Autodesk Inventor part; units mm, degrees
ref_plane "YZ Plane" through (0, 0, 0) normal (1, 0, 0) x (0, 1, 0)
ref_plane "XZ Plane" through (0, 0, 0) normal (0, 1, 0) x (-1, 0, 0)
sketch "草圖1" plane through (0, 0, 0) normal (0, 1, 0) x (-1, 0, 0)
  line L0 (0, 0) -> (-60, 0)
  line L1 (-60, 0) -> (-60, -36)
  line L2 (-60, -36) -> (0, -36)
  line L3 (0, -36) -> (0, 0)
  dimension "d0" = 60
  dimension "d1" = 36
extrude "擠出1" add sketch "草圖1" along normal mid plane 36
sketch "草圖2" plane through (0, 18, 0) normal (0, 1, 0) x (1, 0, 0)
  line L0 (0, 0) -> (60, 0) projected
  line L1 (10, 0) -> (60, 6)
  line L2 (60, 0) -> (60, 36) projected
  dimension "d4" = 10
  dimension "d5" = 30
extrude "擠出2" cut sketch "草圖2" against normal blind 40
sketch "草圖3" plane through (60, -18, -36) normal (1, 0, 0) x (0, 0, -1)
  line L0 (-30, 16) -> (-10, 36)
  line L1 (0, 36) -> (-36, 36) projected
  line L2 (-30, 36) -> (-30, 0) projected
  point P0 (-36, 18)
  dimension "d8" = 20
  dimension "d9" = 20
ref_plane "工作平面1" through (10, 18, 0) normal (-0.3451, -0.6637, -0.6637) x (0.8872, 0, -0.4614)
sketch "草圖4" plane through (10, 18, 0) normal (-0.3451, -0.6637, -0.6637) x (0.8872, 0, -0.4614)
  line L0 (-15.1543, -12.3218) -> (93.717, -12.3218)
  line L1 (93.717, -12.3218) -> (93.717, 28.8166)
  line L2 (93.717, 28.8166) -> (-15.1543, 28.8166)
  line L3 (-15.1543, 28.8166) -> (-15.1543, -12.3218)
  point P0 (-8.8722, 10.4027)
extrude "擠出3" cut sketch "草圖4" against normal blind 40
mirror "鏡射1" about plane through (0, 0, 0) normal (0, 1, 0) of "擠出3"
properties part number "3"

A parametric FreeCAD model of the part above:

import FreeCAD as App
import Part
import Sketcher
from FreeCAD import Vector

doc = App.newDocument("Part")
body = doc.addObject("PartDesign::Body", "Body")

# Sketch on XZ plane
sketch1 = body.newObject("Sketcher::SketchObject", "Sketch")
sketch1.AttachmentSupport = (doc.getObject("XZ_Plane"), [""])
sketch1.MapMode = "FlatFace"
sketch1.addGeometry(Part.LineSegment(Vector(0, -36, 0), Vector(0, 0, 0)), False)
sketch1.addGeometry(Part.LineSegment(Vector(0, 0, 0), Vector(60, 0, 0)), False)
sketch1.addGeometry(Part.LineSegment(Vector(60, 0, 0), Vector(60, -36, 0)), False)
sketch1.addGeometry(Part.LineSegment(Vector(60, -36, 0), Vector(0, -36, 0)), False)
sketch1.addConstraint(Sketcher.Constraint("Coincident", 0, 2, 1, 1))
sketch1.addConstraint(Sketcher.Constraint("Coincident", 1, 2, 2, 1))
sketch1.addConstraint(Sketcher.Constraint("Coincident", 2, 2, 3, 1))
sketch1.addConstraint(Sketcher.Constraint("Coincident", 3, 2, 0, 1))
sketch1.addConstraint(Sketcher.Constraint("Vertical", 0))
sketch1.addConstraint(Sketcher.Constraint("Horizontal", 1))
sketch1.addConstraint(Sketcher.Constraint("Vertical", 2))
sketch1.addConstraint(Sketcher.Constraint("Horizontal", 3))
sketch1.addConstraint(Sketcher.Constraint("Coincident", 0, 2, -1, 1))
sketch1.addConstraint(Sketcher.Constraint("DistanceX", 1, 1, 1, 2, 60.0))
sketch1.addConstraint(Sketcher.Constraint("DistanceY", 0, 1, 0, 2, 36.0))
pad1 = body.newObject("PartDesign::Pad", "Pad")
pad1.Profile = sketch1
pad1.Length = 36
pad1.Midplane = True

# Sketch on XZ plane
sketch2 = body.newObject("Sketcher::SketchObject", "Sketch001")
sketch2.AttachmentSupport = (doc.getObject("XZ_Plane"), [""])
sketch2.MapMode = "FlatFace"
sketch2.AttachmentOffset = App.Placement(Vector(0, 0, -18), App.Rotation())
sketch2.addGeometry(Part.LineSegment(Vector(60, -6, 0), Vector(10, 0, 0)), False)
sketch2.addGeometry(Part.LineSegment(Vector(10, 0, 0), Vector(60, 0, 0)), False)
sketch2.addGeometry(Part.LineSegment(Vector(60, 0, 0), Vector(60, -6, 0)), False)
sketch2.addConstraint(Sketcher.Constraint("Coincident", 0, 2, 1, 1))
sketch2.addConstraint(Sketcher.Constraint("Coincident", 1, 2, 2, 1))
sketch2.addConstraint(Sketcher.Constraint("Coincident", 2, 2, 0, 1))
sketch2.addConstraint(Sketcher.Constraint("Horizontal", 1))
sketch2.addConstraint(Sketcher.Constraint("Vertical", 2))
sketch2.addConstraint(Sketcher.Constraint("PointOnObject", 0, 2, -1))
sketch2.addConstraint(Sketcher.Constraint("DistanceX", -1, 1, 0, 2, 10.0))
sketch2.addConstraint(Sketcher.Constraint("DistanceX", 1, 1, 1, 2, 50.0))
sketch2.addConstraint(Sketcher.Constraint("DistanceY", 2, 2, 2, 1, 6.0))
pocket1 = body.newObject("PartDesign::Pocket", "Pocket")
pocket1.Profile = sketch2
pocket1.Length = 40
pocket1.Reversed = True

# Sketch on an angled plane
sketch3 = body.newObject("Sketcher::SketchObject", "Sketch002")
sketch3.Placement = App.Placement(Vector(10, 18, 0), App.Rotation(Vector(0.887214053, 0.000038796, -0.461358021), Vector(0.306215381, -0.748025188, 0.588804263), Vector(-0.345084577, -0.663670338, -0.663670338), "ZXY"))
sketch3.addGeometry(Part.LineSegment(Vector(-15, 29, 0), Vector(-15, -12, 0)), False)
sketch3.addGeometry(Part.LineSegment(Vector(-15, -12, 0), Vector(94, -12, 0)), False)
sketch3.addGeometry(Part.LineSegment(Vector(94, -12, 0), Vector(94, 29, 0)), False)
sketch3.addGeometry(Part.LineSegment(Vector(94, 29, 0), Vector(-15, 29, 0)), False)
sketch3.addConstraint(Sketcher.Constraint("Coincident", 0, 2, 1, 1))
sketch3.addConstraint(Sketcher.Constraint("Coincident", 1, 2, 2, 1))
sketch3.addConstraint(Sketcher.Constraint("Coincident", 2, 2, 3, 1))
sketch3.addConstraint(Sketcher.Constraint("Coincident", 3, 2, 0, 1))
sketch3.addConstraint(Sketcher.Constraint("Vertical", 0))
sketch3.addConstraint(Sketcher.Constraint("Horizontal", 1))
sketch3.addConstraint(Sketcher.Constraint("Vertical", 2))
sketch3.addConstraint(Sketcher.Constraint("Horizontal", 3))
sketch3.addConstraint(Sketcher.Constraint("DistanceX", 1, 1, 1, 2, 108.8713))
sketch3.addConstraint(Sketcher.Constraint("DistanceY", 0, 2, 0, 1, 41.1384))
sketch3.addConstraint(Sketcher.Constraint("DistanceX", -1, 1, 1, 2, 93.717))
sketch3.addConstraint(Sketcher.Constraint("DistanceY", 0, 2, -1, 1, 12.3218))
pocket2 = body.newObject("PartDesign::Pocket", "Pocket001")
pocket2.Profile = sketch3
pocket2.Length = 40
doc.recompute()

mirrored = body.newObject("PartDesign::Mirrored", "Mirrored")
mirrored.Originals = [pocket2]
mirrored.MirrorPlane = (doc.getObject("XZ_Plane"), [""])
body.Tip = mirrored

doc.recompute()
